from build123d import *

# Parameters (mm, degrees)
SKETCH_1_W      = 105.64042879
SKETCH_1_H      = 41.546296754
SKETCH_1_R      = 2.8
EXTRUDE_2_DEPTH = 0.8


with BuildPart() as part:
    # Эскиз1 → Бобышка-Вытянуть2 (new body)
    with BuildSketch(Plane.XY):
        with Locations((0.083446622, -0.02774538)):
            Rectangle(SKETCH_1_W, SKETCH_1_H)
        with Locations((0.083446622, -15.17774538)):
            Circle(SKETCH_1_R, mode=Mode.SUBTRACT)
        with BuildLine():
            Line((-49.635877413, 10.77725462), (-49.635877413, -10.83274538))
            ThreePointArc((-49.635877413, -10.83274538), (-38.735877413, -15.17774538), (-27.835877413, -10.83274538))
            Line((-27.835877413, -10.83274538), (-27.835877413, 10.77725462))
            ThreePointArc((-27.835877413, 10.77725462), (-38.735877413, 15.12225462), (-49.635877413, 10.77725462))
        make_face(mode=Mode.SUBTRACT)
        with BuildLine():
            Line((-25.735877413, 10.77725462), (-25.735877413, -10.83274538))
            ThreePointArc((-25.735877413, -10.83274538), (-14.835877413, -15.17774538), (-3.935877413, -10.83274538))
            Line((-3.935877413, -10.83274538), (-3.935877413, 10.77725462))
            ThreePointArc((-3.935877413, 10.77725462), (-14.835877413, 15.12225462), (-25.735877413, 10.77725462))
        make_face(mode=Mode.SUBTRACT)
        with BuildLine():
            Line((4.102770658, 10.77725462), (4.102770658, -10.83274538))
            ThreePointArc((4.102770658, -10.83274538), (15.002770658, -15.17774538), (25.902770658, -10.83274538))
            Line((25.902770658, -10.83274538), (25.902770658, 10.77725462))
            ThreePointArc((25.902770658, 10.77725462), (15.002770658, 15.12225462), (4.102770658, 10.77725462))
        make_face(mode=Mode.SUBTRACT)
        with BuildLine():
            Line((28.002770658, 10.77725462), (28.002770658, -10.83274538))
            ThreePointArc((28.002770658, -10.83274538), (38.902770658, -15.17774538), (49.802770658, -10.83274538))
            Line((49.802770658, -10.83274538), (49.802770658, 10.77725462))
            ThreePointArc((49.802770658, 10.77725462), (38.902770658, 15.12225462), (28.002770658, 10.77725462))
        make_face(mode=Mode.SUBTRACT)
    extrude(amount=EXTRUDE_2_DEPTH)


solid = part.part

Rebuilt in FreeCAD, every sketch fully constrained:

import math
import FreeCAD as App
import Part
import Sketcher
from FreeCAD import Vector

doc = App.newDocument("Part")
body = doc.addObject("PartDesign::Body", "Body")

# Sketch on XY plane
sketch1 = body.newObject("Sketcher::SketchObject", "Sketch")
sketch1.AttachmentSupport = (doc.getObject("XY_Plane"), [""])
sketch1.MapMode = "FlatFace"
sketch1.addGeometry([
    Part.LineSegment(Vector(-52.736768, 20.745403, 0), Vector(-52.736768, -20.800894, 0)),  # 0
    Part.LineSegment(Vector(-52.736768, -20.800894, 0), Vector(52.903661, -20.800894, 0)),  # 1
    Part.LineSegment(Vector(52.903661, -20.800894, 0), Vector(52.903661, 20.745403, 0)),  # 2
    Part.LineSegment(Vector(52.903661, 20.745403, 0), Vector(-52.736768, 20.745403, 0)),  # 3
    Part.Circle(Vector(0.083447, -15.177745, 0), Vector(0, 0, 1), 2.8),  # 4
    Part.LineSegment(Vector(-49.635877, -10.832745, 0), Vector(-49.635877, 10.777255, 0)),  # 5
    Part.ArcOfCircle(Part.Circle(Vector(-38.735877, -0.722282, 0), Vector(0, 0, 1), 15.844537), math.radians(46.533189), math.radians(133.466811)),  # 6
    Part.LineSegment(Vector(-27.835877, 10.777255, 0), Vector(-27.835877, -10.832745, 0)),  # 7
    Part.ArcOfCircle(Part.Circle(Vector(-38.735877, 0.666791, 0), Vector(0, 0, 1), 15.844537), math.radians(-133.466811), math.radians(-46.533189)),  # 8
    Part.LineSegment(Vector(-25.735877, -10.832745, 0), Vector(-25.735877, 10.777255, 0)),  # 9
    Part.ArcOfCircle(Part.Circle(Vector(-14.835877, -0.722282, 0), Vector(0, 0, 1), 15.844537), math.radians(46.533189), math.radians(133.466811)),  # 10
    Part.LineSegment(Vector(-3.935877, 10.777255, 0), Vector(-3.935877, -10.832745, 0)),  # 11
    Part.ArcOfCircle(Part.Circle(Vector(-14.835877, 0.666791, 0), Vector(0, 0, 1), 15.844537), math.radians(-133.466811), math.radians(-46.533189)),  # 12
    Part.LineSegment(Vector(4.102771, -10.832745, 0), Vector(4.102771, 10.777255, 0)),  # 13
    Part.ArcOfCircle(Part.Circle(Vector(15.002771, -0.722282, 0), Vector(0, 0, 1), 15.844537), math.radians(46.533189), math.radians(133.466811)),  # 14
    Part.LineSegment(Vector(25.902771, 10.777255, 0), Vector(25.902771, -10.832745, 0)),  # 15
    Part.ArcOfCircle(Part.Circle(Vector(15.002771, 0.666791, 0), Vector(0, 0, 1), 15.844537), math.radians(-133.466811), math.radians(-46.533189)),  # 16
    Part.LineSegment(Vector(28.002771, -10.832745, 0), Vector(28.002771, 10.777255, 0)),  # 17
    Part.ArcOfCircle(Part.Circle(Vector(38.902771, -0.722282, 0), Vector(0, 0, 1), 15.844537), math.radians(46.533189), math.radians(133.466811)),  # 18
    Part.LineSegment(Vector(49.802771, 10.777255, 0), Vector(49.802771, -10.832745, 0)),  # 19
    Part.ArcOfCircle(Part.Circle(Vector(38.902771, 0.666791, 0), Vector(0, 0, 1), 15.844537), math.radians(-133.466811), math.radians(-46.533189)),  # 20
], False)
sketch1.addConstraint([
    Sketcher.Constraint("Coincident", 0, 2, 1, 1),
    Sketcher.Constraint("Coincident", 1, 2, 2, 1),
    Sketcher.Constraint("Coincident", 2, 2, 3, 1),
    Sketcher.Constraint("Coincident", 3, 2, 0, 1),
    Sketcher.Constraint("Coincident", 5, 2, 6, 2),
    Sketcher.Constraint("Coincident", 6, 1, 7, 1),
    Sketcher.Constraint("Coincident", 7, 2, 8, 2),
    Sketcher.Constraint("Coincident", 8, 1, 5, 1),
    Sketcher.Constraint("Coincident", 9, 2, 10, 2),
    Sketcher.Constraint("Coincident", 10, 1, 11, 1),
    Sketcher.Constraint("Coincident", 11, 2, 12, 2),
    Sketcher.Constraint("Coincident", 12, 1, 9, 1),
    Sketcher.Constraint("Coincident", 13, 2, 14, 2),
    Sketcher.Constraint("Coincident", 14, 1, 15, 1),
    Sketcher.Constraint("Coincident", 15, 2, 16, 2),
    Sketcher.Constraint("Coincident", 16, 1, 13, 1),
    Sketcher.Constraint("Coincident", 17, 2, 18, 2),
    Sketcher.Constraint("Coincident", 18, 1, 19, 1),
    Sketcher.Constraint("Coincident", 19, 2, 20, 2),
    Sketcher.Constraint("Coincident", 20, 1, 17, 1),
    Sketcher.Constraint("Vertical", 0),
    Sketcher.Constraint("Horizontal", 1),
    Sketcher.Constraint("Vertical", 2),
    Sketcher.Constraint("Horizontal", 3),
    Sketcher.Constraint("Vertical", 5),
    Sketcher.Constraint("Vertical", 7),
    Sketcher.Constraint("Vertical", 9),
    Sketcher.Constraint("Vertical", 11),
    Sketcher.Constraint("Vertical", 13),
    Sketcher.Constraint("Vertical", 15),
    Sketcher.Constraint("Vertical", 17),
    Sketcher.Constraint("Vertical", 19),
    Sketcher.Constraint("Equal", 6, 8),
    Sketcher.Constraint("Equal", 8, 10),
    Sketcher.Constraint("Equal", 10, 12),
    Sketcher.Constraint("Equal", 12, 14),
    Sketcher.Constraint("Equal", 14, 16),
    Sketcher.Constraint("Equal", 16, 18),
    Sketcher.Constraint("Equal", 18, 20),
    Sketcher.Constraint("Horizontal", 6, 3, 10, 3),
    Sketcher.Constraint("Horizontal", 8, 3, 12, 3),
    Sketcher.Constraint("Horizontal", 10, 3, 14, 3),
    Sketcher.Constraint("Horizontal", 12, 3, 16, 3),
    Sketcher.Constraint("Horizontal", 14, 3, 18, 3),
    Sketcher.Constraint("Horizontal", 16, 3, 20, 3),
    Sketcher.Constraint("Horizontal", 5, 2, 6, 1),
    Sketcher.Constraint("Horizontal", 7, 2, 8, 1),
    Sketcher.Constraint("Horizontal", 6, 1, 9, 2),
    Sketcher.Constraint("Horizontal", 9, 2, 10, 1),
    Sketcher.Constraint("Horizontal", 8, 1, 11, 2),
    Sketcher.Constraint("Horizontal", 10, 1, 13, 2),
    Sketcher.Constraint("Horizontal", 13, 2, 14, 1),
    Sketcher.Constraint("Horizontal", 12, 1, 15, 2),
    Sketcher.Constraint("Horizontal", 14, 1, 17, 2),
    Sketcher.Constraint("Horizontal", 17, 2, 18, 1),
    Sketcher.Constraint("Horizontal", 16, 1, 19, 2),
    Sketcher.Constraint("Diameter", 4, 5.6),
    Sketcher.Constraint("DistanceX", 6, 1, 12, 3, 13.0),
    Sketcher.Constraint("DistanceX", 14, 1, 20, 3, 13.0),
    Sketcher.Constraint("DistanceY", 5, 1, 5, 2, 21.61),
    Sketcher.Constraint("DistanceX", 6, 3, 10, 3, 23.9),
    Sketcher.Constraint("Radius", 6, 15.844537),
    Sketcher.Constraint("DistanceY", 4, 3, 11, 2, 4.345),
    Sketcher.Constraint("DistanceX", 1, 1, 1, 2, 105.640429),
    Sketcher.Constraint("DistanceY", 0, 2, 0, 1, 41.546297),
    Sketcher.Constraint("DistanceY", -1, 1, 8, 3, 0.666791),
    Sketcher.Constraint("DistanceX", -1, 1, 14, 3, 15.002771),
    Sketcher.Constraint("DistanceX", -1, 1, 1, 2, 52.903661),
    Sketcher.Constraint("DistanceX", 10, 3, 14, 3, 29.838648),
    Sketcher.Constraint("DistanceY", 0, 2, 6, 3, 20.078612),
    Sketcher.Constraint("DistanceX", -1, 1, 4, 3, 0.083447),
])
pad1 = body.newObject("PartDesign::Pad", "Pad")
pad1.Profile = sketch1
pad1.Length = 0.8

doc.recompute()
